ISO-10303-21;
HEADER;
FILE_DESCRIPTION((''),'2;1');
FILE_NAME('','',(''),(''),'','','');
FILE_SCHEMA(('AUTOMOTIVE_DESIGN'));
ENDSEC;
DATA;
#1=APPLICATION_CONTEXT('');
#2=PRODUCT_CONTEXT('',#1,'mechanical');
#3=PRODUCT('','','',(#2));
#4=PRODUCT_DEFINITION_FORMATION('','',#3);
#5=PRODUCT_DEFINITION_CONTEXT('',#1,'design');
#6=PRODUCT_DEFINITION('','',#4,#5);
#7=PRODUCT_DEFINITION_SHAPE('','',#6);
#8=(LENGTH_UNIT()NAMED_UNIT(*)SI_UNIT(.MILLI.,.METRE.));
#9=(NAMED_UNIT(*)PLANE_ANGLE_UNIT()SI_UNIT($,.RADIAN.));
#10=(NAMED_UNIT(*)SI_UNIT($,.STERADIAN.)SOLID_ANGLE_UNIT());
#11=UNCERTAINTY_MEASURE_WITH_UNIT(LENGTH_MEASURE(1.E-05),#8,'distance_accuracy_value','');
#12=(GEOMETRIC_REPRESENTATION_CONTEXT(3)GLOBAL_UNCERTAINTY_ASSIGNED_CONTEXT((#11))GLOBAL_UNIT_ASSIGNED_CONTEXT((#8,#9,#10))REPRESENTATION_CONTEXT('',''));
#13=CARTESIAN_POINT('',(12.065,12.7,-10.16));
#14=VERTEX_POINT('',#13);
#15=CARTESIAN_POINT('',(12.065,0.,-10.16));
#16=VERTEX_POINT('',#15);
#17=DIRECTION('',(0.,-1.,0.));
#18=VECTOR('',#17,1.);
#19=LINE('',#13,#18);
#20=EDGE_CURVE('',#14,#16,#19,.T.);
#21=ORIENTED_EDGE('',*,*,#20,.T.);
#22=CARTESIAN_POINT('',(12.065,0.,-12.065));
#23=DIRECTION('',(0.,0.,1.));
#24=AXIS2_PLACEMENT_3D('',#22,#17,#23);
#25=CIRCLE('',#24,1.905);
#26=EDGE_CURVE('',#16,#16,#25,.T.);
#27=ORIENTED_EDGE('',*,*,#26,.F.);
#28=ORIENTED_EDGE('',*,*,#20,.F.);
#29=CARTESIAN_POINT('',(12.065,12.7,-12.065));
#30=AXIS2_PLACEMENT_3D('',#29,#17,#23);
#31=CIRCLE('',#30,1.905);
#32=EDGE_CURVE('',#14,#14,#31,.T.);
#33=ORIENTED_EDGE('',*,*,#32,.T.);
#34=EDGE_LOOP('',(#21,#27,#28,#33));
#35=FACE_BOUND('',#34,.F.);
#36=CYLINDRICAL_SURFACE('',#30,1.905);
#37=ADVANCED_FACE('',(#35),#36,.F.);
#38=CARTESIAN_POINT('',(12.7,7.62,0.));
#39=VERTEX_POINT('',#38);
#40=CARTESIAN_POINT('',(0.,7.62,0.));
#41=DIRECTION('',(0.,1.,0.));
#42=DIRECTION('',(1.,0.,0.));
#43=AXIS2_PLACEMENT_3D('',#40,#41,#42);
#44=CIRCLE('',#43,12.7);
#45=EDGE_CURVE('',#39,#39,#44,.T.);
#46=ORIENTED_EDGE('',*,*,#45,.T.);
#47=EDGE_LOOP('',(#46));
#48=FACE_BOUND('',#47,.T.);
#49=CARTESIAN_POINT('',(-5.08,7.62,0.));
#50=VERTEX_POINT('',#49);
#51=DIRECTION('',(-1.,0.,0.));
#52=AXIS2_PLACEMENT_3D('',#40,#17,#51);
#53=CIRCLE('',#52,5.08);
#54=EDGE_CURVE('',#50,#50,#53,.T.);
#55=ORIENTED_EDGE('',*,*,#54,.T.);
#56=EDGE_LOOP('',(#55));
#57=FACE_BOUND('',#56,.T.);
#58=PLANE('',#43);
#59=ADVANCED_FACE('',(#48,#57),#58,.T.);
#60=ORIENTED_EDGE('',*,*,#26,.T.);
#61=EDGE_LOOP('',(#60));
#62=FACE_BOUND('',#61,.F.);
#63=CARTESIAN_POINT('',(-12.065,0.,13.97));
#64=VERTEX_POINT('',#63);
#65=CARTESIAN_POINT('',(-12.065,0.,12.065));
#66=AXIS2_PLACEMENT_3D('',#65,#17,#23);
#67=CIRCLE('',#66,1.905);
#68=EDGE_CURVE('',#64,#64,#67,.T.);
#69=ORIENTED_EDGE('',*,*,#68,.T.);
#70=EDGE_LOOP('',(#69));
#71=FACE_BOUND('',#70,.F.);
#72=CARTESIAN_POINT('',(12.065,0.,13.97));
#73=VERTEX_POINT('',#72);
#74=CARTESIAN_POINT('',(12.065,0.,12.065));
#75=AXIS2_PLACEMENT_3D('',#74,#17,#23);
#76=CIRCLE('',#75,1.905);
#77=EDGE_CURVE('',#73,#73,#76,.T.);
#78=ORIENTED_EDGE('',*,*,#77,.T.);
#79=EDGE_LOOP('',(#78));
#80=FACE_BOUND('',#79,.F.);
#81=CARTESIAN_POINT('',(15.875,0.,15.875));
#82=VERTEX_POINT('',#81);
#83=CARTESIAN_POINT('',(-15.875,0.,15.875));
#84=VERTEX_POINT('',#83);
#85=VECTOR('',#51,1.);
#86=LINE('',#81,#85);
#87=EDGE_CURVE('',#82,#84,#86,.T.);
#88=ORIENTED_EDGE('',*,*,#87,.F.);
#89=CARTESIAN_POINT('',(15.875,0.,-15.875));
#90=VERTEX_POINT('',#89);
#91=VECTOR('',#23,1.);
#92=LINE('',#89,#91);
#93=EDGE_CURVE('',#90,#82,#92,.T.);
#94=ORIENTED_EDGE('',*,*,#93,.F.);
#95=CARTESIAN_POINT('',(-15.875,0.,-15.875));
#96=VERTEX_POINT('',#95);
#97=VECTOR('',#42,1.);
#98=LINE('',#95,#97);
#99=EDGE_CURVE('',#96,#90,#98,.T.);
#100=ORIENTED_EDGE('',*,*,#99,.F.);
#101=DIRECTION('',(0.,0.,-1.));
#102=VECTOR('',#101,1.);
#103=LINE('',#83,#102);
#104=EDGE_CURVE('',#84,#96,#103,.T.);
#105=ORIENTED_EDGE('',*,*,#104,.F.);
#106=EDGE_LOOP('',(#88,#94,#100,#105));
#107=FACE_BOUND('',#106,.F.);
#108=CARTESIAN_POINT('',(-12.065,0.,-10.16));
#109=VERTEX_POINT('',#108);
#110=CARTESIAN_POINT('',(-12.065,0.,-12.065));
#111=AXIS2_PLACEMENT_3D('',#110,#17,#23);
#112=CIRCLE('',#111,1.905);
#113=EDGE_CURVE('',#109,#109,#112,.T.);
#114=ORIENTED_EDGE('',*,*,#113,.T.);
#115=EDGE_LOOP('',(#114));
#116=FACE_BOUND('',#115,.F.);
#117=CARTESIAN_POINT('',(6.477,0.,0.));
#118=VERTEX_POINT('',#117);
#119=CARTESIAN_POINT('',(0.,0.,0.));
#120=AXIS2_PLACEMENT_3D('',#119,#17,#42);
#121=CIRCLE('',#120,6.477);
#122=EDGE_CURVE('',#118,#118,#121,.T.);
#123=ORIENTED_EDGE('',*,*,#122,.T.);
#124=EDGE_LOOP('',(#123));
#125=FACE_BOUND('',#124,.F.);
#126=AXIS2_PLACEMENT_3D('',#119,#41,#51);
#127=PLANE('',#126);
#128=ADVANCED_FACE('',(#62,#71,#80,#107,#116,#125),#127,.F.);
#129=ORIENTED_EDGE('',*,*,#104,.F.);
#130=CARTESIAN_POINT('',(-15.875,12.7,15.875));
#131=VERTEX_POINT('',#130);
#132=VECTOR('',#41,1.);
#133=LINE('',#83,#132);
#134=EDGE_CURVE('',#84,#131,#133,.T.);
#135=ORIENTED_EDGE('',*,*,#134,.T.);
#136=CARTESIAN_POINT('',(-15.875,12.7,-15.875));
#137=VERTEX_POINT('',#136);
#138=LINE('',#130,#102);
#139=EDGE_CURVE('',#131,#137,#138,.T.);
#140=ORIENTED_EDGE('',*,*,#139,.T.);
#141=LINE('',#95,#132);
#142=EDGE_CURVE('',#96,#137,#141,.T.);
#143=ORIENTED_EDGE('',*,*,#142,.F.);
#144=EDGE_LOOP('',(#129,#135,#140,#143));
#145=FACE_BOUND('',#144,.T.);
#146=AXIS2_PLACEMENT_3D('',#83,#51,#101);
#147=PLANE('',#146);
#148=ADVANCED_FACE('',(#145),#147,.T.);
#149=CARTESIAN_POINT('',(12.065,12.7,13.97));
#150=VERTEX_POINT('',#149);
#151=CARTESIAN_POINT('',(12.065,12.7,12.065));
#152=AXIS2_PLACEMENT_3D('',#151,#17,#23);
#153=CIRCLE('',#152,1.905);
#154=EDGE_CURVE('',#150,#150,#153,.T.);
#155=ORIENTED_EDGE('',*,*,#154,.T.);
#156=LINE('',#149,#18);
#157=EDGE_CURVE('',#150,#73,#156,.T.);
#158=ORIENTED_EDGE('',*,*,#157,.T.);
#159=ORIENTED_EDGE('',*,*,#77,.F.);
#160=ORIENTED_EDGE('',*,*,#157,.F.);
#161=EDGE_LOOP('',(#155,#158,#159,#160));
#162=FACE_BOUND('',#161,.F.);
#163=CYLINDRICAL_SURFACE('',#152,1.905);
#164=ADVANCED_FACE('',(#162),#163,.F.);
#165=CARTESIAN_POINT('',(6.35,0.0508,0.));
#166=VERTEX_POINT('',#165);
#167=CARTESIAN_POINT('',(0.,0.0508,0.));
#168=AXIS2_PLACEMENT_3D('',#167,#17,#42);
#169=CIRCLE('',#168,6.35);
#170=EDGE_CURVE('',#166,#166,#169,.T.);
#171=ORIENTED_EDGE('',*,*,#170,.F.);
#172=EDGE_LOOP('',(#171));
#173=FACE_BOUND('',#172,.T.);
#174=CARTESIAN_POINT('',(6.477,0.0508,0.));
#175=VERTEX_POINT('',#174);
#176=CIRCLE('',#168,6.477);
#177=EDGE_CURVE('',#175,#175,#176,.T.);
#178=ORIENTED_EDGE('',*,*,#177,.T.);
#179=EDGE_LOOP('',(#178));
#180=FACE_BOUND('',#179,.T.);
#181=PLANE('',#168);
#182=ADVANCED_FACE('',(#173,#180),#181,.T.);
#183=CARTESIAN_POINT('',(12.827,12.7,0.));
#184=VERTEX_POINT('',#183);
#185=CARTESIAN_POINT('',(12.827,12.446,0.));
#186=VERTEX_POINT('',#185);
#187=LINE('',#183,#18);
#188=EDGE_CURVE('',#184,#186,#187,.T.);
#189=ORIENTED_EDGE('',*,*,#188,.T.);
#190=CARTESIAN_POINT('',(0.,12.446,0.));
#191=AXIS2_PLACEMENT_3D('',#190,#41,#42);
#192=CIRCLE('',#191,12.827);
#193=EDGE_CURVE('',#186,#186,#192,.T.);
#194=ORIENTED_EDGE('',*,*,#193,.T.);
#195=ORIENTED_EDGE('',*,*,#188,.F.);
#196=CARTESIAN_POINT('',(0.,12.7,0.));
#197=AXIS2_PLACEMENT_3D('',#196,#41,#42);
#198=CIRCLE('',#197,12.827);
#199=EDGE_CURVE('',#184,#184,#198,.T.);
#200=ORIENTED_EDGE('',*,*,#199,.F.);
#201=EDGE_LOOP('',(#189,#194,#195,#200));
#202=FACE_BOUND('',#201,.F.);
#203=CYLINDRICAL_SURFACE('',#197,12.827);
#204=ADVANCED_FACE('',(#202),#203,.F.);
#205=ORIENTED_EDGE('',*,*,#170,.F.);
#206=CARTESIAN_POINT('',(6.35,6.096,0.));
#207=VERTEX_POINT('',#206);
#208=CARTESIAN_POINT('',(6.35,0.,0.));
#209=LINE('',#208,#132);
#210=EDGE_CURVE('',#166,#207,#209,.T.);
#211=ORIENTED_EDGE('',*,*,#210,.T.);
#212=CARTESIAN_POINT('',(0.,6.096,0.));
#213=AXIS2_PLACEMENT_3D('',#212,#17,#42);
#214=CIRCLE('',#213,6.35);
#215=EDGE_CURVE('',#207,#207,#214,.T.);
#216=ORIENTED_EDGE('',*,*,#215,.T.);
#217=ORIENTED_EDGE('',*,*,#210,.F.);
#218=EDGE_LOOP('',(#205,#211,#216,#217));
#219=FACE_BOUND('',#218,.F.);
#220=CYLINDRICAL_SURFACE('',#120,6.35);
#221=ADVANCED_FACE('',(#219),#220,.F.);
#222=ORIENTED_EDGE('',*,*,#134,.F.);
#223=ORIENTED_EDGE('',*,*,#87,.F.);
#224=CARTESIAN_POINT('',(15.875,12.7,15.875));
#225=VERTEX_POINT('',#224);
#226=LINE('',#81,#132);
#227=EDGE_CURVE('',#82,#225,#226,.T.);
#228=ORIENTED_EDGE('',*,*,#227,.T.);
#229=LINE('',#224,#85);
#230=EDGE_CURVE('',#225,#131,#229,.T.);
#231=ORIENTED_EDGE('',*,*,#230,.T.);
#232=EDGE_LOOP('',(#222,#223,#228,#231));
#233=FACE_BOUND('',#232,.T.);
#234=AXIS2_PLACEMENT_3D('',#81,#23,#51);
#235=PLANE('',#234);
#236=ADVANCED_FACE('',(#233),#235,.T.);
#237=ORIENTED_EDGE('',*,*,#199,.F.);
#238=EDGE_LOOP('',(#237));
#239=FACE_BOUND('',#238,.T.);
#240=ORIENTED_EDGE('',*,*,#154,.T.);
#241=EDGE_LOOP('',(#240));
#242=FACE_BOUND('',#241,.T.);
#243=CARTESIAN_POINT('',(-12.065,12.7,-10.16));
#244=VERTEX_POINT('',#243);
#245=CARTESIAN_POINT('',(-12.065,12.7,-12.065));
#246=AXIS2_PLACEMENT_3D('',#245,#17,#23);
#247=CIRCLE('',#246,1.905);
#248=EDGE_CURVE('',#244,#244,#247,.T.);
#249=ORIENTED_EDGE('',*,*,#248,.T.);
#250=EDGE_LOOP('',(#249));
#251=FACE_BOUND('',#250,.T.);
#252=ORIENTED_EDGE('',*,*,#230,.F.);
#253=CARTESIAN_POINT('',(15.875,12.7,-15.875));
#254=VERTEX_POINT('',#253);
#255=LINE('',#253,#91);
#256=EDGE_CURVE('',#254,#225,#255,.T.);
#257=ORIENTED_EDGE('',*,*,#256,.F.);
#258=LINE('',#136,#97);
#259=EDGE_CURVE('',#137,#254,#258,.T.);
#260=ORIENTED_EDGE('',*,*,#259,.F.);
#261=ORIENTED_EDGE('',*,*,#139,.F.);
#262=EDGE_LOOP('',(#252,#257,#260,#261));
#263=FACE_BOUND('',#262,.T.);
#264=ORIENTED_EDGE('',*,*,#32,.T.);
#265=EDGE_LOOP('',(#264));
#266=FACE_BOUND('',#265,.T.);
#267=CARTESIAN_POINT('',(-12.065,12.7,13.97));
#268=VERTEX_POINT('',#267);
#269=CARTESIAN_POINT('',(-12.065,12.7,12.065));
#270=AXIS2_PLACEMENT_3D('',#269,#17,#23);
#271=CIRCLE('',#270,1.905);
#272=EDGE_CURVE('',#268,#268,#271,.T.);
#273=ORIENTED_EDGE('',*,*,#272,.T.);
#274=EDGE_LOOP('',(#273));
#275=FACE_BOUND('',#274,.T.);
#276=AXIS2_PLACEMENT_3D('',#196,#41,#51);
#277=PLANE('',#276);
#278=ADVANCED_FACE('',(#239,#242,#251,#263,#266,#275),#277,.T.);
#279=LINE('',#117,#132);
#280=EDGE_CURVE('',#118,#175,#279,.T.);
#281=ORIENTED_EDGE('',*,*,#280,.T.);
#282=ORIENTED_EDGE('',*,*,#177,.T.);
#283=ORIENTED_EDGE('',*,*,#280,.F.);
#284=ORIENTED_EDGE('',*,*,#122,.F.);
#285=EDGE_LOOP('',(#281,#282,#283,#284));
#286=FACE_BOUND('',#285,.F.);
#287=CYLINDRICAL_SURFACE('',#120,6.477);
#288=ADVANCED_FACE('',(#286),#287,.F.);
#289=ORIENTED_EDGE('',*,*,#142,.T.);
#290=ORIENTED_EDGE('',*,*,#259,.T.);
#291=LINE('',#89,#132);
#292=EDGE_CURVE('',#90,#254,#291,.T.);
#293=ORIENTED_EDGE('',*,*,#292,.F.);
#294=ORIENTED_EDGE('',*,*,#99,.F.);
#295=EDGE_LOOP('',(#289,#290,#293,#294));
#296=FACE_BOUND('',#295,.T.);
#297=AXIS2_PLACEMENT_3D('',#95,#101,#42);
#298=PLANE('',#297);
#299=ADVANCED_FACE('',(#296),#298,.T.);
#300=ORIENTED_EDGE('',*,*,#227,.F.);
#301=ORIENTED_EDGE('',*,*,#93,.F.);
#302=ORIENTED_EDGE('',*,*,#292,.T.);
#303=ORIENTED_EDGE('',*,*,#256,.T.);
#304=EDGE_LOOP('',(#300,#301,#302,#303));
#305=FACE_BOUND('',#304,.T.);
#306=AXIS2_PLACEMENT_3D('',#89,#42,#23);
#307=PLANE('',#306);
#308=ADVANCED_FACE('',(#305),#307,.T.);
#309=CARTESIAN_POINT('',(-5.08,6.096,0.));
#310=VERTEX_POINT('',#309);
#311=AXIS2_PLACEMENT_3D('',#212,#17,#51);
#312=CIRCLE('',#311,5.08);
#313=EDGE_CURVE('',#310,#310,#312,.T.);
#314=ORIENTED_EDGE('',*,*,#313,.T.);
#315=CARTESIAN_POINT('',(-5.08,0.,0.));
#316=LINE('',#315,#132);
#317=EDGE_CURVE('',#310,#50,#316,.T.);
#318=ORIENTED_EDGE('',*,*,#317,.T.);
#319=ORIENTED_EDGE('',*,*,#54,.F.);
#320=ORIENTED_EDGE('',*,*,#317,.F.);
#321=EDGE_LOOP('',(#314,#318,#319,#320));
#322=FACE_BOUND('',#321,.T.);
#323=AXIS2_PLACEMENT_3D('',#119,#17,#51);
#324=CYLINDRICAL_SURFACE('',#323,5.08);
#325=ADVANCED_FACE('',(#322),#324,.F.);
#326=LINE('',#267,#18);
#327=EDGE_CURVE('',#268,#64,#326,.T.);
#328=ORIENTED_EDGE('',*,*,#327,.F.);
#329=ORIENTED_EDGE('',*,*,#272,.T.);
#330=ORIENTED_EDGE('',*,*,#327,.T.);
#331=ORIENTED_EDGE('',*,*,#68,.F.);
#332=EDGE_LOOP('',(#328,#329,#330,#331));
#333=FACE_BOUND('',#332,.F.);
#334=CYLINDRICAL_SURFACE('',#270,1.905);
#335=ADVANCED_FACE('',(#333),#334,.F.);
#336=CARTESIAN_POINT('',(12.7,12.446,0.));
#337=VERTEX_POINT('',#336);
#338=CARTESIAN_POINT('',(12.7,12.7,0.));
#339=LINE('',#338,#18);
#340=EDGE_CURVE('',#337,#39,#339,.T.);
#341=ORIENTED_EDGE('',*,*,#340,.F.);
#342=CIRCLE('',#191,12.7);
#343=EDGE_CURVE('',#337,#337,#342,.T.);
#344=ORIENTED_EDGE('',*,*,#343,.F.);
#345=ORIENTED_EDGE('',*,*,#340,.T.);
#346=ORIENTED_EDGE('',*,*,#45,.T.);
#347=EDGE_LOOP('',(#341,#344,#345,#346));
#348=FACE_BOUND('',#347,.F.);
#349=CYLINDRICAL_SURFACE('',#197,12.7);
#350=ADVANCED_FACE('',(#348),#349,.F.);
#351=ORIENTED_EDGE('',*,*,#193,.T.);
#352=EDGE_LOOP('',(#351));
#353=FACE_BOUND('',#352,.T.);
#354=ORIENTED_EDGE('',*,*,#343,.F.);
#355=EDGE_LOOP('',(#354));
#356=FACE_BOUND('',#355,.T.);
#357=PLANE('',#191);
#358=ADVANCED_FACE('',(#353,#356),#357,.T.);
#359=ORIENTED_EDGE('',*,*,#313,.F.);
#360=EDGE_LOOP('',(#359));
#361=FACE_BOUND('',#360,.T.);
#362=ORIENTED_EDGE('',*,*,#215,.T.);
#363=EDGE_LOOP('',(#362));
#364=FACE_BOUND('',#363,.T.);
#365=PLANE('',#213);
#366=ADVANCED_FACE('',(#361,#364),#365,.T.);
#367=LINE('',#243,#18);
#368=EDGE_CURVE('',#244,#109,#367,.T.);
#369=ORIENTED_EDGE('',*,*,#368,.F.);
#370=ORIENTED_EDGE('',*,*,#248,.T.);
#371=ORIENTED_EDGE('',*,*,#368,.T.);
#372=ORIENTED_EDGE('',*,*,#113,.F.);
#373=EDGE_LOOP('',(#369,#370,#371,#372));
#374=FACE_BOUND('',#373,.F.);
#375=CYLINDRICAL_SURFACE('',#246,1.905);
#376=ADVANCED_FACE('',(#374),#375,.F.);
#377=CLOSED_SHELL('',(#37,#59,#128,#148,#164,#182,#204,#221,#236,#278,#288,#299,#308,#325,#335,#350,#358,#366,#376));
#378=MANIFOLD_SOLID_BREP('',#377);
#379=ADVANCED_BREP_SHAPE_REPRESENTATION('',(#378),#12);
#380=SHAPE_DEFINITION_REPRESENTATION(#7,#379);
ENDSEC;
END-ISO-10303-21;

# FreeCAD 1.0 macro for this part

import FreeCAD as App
import Part
import Sketcher
Q = App.Units.Quantity

doc = App.newDocument("Part")
body = doc.addObject("PartDesign::Body", "Body")

sketch1 = body.newObject("Sketcher::SketchObject", "Sketch")
sketch1.AttachmentSupport = (doc.getObject("XZ_Plane"), [""])
sketch1.MapMode = "FlatFace"
sketch1.addGeometry(Part.LineSegment(App.Vector(-16, 16, 0), App.Vector(16, 16, 0)), False)
sketch1.addGeometry(Part.LineSegment(App.Vector(16, 16, 0), App.Vector(16, -16, 0)), False)
sketch1.addGeometry(Part.LineSegment(App.Vector(16, -16, 0), App.Vector(-16, -16, 0)), False)
sketch1.addGeometry(Part.LineSegment(App.Vector(-16, -16, 0), App.Vector(-16, 16, 0)), False)
sketch1.addGeometry(Part.Circle(App.Vector(0, 0, 0), App.Vector(0, 0, 1), 5), False)
sketch1.addConstraint(Sketcher.Constraint("Coincident", 0, 2, 1, 1))
sketch1.addConstraint(Sketcher.Constraint("Coincident", 1, 2, 2, 1))
sketch1.addConstraint(Sketcher.Constraint("Coincident", 2, 2, 3, 1))
sketch1.addConstraint(Sketcher.Constraint("Coincident", 3, 2, 0, 1))
sketch1.addConstraint(Sketcher.Constraint("Horizontal", 0))
sketch1.addConstraint(Sketcher.Constraint("Vertical", 1))
sketch1.addConstraint(Sketcher.Constraint("Horizontal", 2))
sketch1.addConstraint(Sketcher.Constraint("Vertical", 3))
sketch1.addConstraint(Sketcher.Constraint("Coincident", 4, 3, -1, 1))
sketch1.addConstraint(Sketcher.Constraint("Symmetric", 0, 2, 2, 2, -1, 1))
sketch1.addConstraint(Sketcher.Constraint("Equal", 2, 1))
sketch1.addConstraint(Sketcher.Constraint("Diameter", 4, Q("0.4 in")))
sketch1.addConstraint(Sketcher.Constraint("DistanceX", 0, 1, 0, 2, Q("1.25 in")))
pad1 = body.newObject("PartDesign::Pad", "Pad")
pad1.Profile = sketch1
pad1.Length = Q("0.5 in")
pad1.Reversed = True

sketch2 = body.newObject("Sketcher::SketchObject", "Sketch001")
sketch2.AttachmentSupport = (doc.getObject("XZ_Plane"), [""])
sketch2.MapMode = "FlatFace"
sketch2.AttachmentOffset = App.Placement(App.Vector(0, 0, -0.5 * 25.4), App.Rotation())
sketch2.addGeometry(Part.Circle(App.Vector(0, 0, 0), App.Vector(0, 0, 1), 13), False)
sketch2.addConstraint(Sketcher.Constraint("Coincident", 0, 3, -1, 1))
sketch2.addConstraint(Sketcher.Constraint("Diameter", 0, Q("1 in")))
pocket1 = body.newObject("PartDesign::Pocket", "Pocket")
pocket1.Profile = sketch2
pocket1.Length = Q("0.2 in")
pocket1.Reversed = True

sketch3 = body.newObject("Sketcher::SketchObject", "Sketch002")
sketch3.AttachmentSupport = (doc.getObject("XZ_Plane"), [""])
sketch3.MapMode = "FlatFace"
sketch3.AttachmentOffset = App.Placement(App.Vector(0, 0, -0.5 * 25.4), App.Rotation())
sketch3.addGeometry(Part.Circle(App.Vector(12.1, 12.1, 0), App.Vector(0, 0, 1), 1.9), False)
sketch3.addGeometry(Part.Circle(App.Vector(-12.1, 12.1, 0), App.Vector(0, 0, 1), 1.9), False)
sketch3.addGeometry(Part.Circle(App.Vector(-12.1, -12.1, 0), App.Vector(0, 0, 1), 1.9), False)
sketch3.addGeometry(Part.Circle(App.Vector(12.1, -12.1, 0), App.Vector(0, 0, 1), 1.9), False)
sketch3.addConstraint(Sketcher.Constraint("Equal", 0, 1))
sketch3.addConstraint(Sketcher.Constraint("Equal", 1, 2))
sketch3.addConstraint(Sketcher.Constraint("Equal", 2, 3))
sketch3.addConstraint(Sketcher.Constraint("Symmetric", 0, 3, 2, 3, -1, 1))
sketch3.addConstraint(Sketcher.Constraint("Symmetric", 1, 3, 3, 3, -1, 1))
sketch3.addConstraint(Sketcher.Constraint("Symmetric", 0, 3, 1, 3, -2))
sketch3.addConstraint(Sketcher.Constraint("Diameter", 0, Q("0.15 in")))
sketch3.addConstraint(Sketcher.Constraint("DistanceX", 1, 3, 0, 3, Q("0.95 in")))
sketch3.addConstraint(Sketcher.Constraint("DistanceY", 2, 3, 1, 3, Q("0.95 in")))
doc.recompute()
hole = body.newObject("PartDesign::Hole", "Hole")
hole.Profile = sketch3
hole.ThreadType = "None"
hole.Diameter = Q("0.15 in")
hole.DepthType = "ThroughAll"
hole.Reversed = True

sketch4 = body.newObject("Sketcher::SketchObject", "Sketch003")
sketch4.AttachmentSupport = (doc.getObject("XZ_Plane"), [""])
sketch4.MapMode = "FlatFace"
sketch4.AttachmentOffset = App.Placement(App.Vector(0, 0, -0.5 * 25.4), App.Rotation())
sketch4.addGeometry(Part.Circle(App.Vector(0, 0, 0), App.Vector(0, 0, 1), 13), False)
sketch4.addConstraint(Sketcher.Constraint("Coincident", 0, 3, -1, 1))
sketch4.addConstraint(Sketcher.Constraint("Diameter", 0, Q("1.01 in")))
pocket2 = body.newObject("PartDesign::Pocket", "Pocket001")
pocket2.Profile = sketch4
pocket2.Length = Q("0.01 in")
pocket2.Reversed = True

sketch5 = body.newObject("Sketcher::SketchObject", "Sketch004")
sketch5.AttachmentSupport = (doc.getObject("XZ_Plane"), [""])
sketch5.MapMode = "FlatFace"
sketch5.addGeometry(Part.Circle(App.Vector(0, 0, 0), App.Vector(0, 0, 1), 6), False)
sketch5.addConstraint(Sketcher.Constraint("Coincident", 0, 3, -1, 1))
sketch5.addConstraint(Sketcher.Constraint("Diameter", 0, Q("0.51 in")))
pocket3 = body.newObject("PartDesign::Pocket", "Pocket002")
pocket3.Profile = sketch5
pocket3.Length = Q("0.002 in")

sketch6 = body.newObject("Sketcher::SketchObject", "Sketch005")
sketch6.AttachmentSupport = (doc.getObject("XZ_Plane"), [""])
sketch6.MapMode = "FlatFace"
sketch6.addGeometry(Part.Circle(App.Vector(0, 0, 0), App.Vector(0, 0, 1), 6), False)
sketch6.addConstraint(Sketcher.Constraint("Coincident", 0, 3, -1, 1))
sketch6.addConstraint(Sketcher.Constraint("Diameter", 0, Q("0.5 in")))
pocket4 = body.newObject("PartDesign::Pocket", "Pocket003")
pocket4.Profile = sketch6
pocket4.Length = Q("0.24 in")

doc.recompute()
